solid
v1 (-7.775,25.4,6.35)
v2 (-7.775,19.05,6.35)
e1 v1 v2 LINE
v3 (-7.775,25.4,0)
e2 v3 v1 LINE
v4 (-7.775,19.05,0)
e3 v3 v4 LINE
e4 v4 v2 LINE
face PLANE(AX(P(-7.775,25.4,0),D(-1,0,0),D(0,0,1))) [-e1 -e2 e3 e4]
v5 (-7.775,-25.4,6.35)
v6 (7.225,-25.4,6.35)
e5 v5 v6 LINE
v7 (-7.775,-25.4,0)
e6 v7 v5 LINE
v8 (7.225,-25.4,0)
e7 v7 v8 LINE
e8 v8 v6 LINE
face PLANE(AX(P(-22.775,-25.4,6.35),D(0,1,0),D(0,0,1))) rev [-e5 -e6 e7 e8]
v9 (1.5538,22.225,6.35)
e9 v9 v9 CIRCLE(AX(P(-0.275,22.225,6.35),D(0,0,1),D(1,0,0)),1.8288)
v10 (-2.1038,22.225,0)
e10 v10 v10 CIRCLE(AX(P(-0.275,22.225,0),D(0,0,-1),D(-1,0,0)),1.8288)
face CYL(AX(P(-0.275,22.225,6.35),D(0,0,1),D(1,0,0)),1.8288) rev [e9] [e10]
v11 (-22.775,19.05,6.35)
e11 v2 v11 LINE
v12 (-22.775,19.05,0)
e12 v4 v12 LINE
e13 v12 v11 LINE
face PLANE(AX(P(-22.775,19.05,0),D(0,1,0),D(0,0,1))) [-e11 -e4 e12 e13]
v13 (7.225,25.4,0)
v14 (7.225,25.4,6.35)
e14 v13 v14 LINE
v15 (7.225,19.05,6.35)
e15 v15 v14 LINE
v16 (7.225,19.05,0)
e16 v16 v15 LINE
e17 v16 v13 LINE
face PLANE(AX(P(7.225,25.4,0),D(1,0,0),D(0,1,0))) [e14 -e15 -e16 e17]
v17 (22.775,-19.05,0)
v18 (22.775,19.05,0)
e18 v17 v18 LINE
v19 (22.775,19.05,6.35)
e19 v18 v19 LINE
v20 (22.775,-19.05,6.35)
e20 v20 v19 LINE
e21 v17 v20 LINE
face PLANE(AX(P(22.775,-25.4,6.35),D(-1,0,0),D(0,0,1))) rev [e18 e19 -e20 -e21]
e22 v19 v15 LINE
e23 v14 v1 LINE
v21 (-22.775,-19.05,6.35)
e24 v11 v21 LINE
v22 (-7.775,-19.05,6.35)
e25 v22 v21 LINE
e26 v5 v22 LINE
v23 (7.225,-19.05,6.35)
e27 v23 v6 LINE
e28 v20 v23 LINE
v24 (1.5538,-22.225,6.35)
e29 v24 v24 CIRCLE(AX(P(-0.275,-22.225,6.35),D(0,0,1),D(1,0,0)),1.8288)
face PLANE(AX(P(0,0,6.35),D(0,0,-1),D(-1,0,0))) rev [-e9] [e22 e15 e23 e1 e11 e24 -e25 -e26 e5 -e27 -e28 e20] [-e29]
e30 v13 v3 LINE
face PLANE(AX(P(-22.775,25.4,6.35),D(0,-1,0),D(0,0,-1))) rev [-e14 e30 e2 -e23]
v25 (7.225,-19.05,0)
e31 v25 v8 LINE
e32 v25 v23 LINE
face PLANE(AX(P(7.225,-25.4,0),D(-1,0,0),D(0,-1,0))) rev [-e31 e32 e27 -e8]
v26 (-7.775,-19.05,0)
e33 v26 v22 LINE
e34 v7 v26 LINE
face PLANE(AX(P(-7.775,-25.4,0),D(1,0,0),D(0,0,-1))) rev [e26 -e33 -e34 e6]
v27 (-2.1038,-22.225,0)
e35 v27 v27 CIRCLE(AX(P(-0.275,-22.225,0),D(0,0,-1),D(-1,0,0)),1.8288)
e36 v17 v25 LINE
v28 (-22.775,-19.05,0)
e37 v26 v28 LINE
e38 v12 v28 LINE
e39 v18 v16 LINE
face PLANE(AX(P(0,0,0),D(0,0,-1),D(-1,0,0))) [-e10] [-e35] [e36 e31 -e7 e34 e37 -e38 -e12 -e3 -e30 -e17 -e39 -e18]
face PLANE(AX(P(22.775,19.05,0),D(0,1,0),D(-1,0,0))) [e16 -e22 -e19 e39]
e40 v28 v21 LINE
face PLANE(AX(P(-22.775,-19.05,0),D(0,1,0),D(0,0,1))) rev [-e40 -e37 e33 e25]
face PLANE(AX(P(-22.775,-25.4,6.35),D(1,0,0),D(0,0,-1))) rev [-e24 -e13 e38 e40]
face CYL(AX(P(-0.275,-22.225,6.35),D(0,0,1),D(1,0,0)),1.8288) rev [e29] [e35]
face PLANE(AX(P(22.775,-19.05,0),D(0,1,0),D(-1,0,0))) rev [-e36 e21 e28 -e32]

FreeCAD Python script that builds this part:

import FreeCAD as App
import Part
import Sketcher

V = App.Vector
Q = App.Units.Quantity

doc = App.newDocument("Part")
body = doc.addObject("PartDesign::Body", "Body")

sketch1 = body.newObject("Sketcher::SketchObject", "Sketch")
sketch1.AttachmentSupport = (doc.getObject("XY_Plane"), [""])
sketch1.MapMode = "FlatFace"
sketch1.addGeometry([
    Part.LineSegment(V(-23, 25, 0), V(-23, -25, 0)),
    Part.LineSegment(V(-23, -25, 0), V(23, -25, 0)),
    Part.LineSegment(V(23, -25, 0), V(23, 25, 0)),
    Part.LineSegment(V(23, 25, 0), V(-23, 25, 0)),
], False)
sketch1.addConstraint([
    Sketcher.Constraint("Coincident", 0, 2, 1, 1),
    Sketcher.Constraint("Coincident", 1, 2, 2, 1),
    Sketcher.Constraint("Coincident", 2, 2, 3, 1),
    Sketcher.Constraint("Coincident", 3, 2, 0, 1),
    Sketcher.Constraint("Vertical", 0),
    Sketcher.Constraint("Horizontal", 1),
    Sketcher.Constraint("Vertical", 2),
    Sketcher.Constraint("Horizontal", 3),
    Sketcher.Constraint("Symmetric", 0, 2, 2, 2, -1, 1),
    Sketcher.Constraint("DistanceY", 0, 2, 0, 1, Q("2 in")),
    Sketcher.Constraint("DistanceX", 1, 1, 1, 2, 45.55),
])
pad1 = body.newObject("PartDesign::Pad", "Pad")
pad1.Profile = sketch1
pad1.Length = Q("0.25 in")

sketch2 = body.newObject("Sketcher::SketchObject", "Sketch001")
sketch2.AttachmentSupport = (doc.getObject("XY_Plane"), [""])
sketch2.MapMode = "FlatFace"
sketch2.AttachmentOffset = App.Placement(V(0, 0, 0.25 * 25.4), App.Rotation())
sketch2.addGeometry([
    Part.LineSegment(V(-23, -19, 0), V(-23, -25, 0)),
    Part.LineSegment(V(-23, -25, 0), V(-8, -25, 0)),
    Part.LineSegment(V(-8, -25, 0), V(-8, -19, 0)),
    Part.LineSegment(V(-8, -19, 0), V(-23, -19, 0)),
    Part.LineSegment(V(7, -19, 0), V(7, -25, 0)),
    Part.LineSegment(V(7, -25, 0), V(23, -25, 0)),
    Part.LineSegment(V(23, -25, 0), V(23, -19, 0)),
    Part.LineSegment(V(23, -19, 0), V(7, -19, 0)),
], False)
sketch2.addConstraint([
    Sketcher.Constraint("Coincident", 0, 2, 1, 1),
    Sketcher.Constraint("Coincident", 1, 2, 2, 1),
    Sketcher.Constraint("Coincident", 2, 2, 3, 1),
    Sketcher.Constraint("Coincident", 3, 2, 0, 1),
    Sketcher.Constraint("Coincident", 4, 2, 5, 1),
    Sketcher.Constraint("Coincident", 5, 2, 6, 1),
    Sketcher.Constraint("Coincident", 6, 2, 7, 1),
    Sketcher.Constraint("Coincident", 7, 2, 4, 1),
    Sketcher.Constraint("Vertical", 0),
    Sketcher.Constraint("Horizontal", 1),
    Sketcher.Constraint("Vertical", 2),
    Sketcher.Constraint("Horizontal", 3),
    Sketcher.Constraint("Vertical", 4),
    Sketcher.Constraint("Horizontal", 5),
    Sketcher.Constraint("Vertical", 6),
    Sketcher.Constraint("Horizontal", 7),
    Sketcher.Constraint("Symmetric", 0, 2, 5, 2, -2),
    Sketcher.Constraint("Horizontal", 3, 2, 6, 2),
    Sketcher.Constraint("DistanceY", 0, 2, -1, 1, Q("1 in")),
    Sketcher.Constraint("DistanceY", 0, 2, 0, 1, Q("0.25 in")),
    Sketcher.Constraint("DistanceX", 1, 1, 1, 2, 15.0),
    Sketcher.Constraint("DistanceX", 5, 1, 5, 2, 15.55),
    Sketcher.Constraint("DistanceX", 0, 2, -1, 1, 22.775),
])
pocket1 = body.newObject("PartDesign::Pocket", "Pocket")
pocket1.Profile = sketch2
pocket1.Length = Q("0.25 in")

sketch3 = body.newObject("Sketcher::SketchObject", "Sketch002")
sketch3.AttachmentSupport = (doc.getObject("XY_Plane"), [""])
sketch3.MapMode = "FlatFace"
sketch3.AttachmentOffset = App.Placement(V(0, 0, 0.25 * 25.4), App.Rotation())
sketch3.addGeometry(Part.Circle(V(-0.3, -22.2, 0), V(0, 0, 1), 1.8), False)
sketch3.addConstraint([
    Sketcher.Constraint("Diameter", 0, Q("0.144 in")),
    Sketcher.Constraint("DistanceY", 0, 3, -1, 1, Q("0.875 in")),
    Sketcher.Constraint("DistanceX", 0, 3, -1, 1, 0.275),
])
doc.recompute()
hole = body.newObject("PartDesign::Hole", "Hole")
hole.Profile = sketch3
hole.ThreadType = "None"
hole.Diameter = Q("0.144 in")
hole.DepthType = "ThroughAll"
doc.recompute()

mirrored = body.newObject("PartDesign::Mirrored", "Mirrored")
mirrored.Originals = [pocket1, hole]
mirrored.MirrorPlane = (doc.getObject("XZ_Plane"), [""])
body.Tip = mirrored

doc.recompute()
